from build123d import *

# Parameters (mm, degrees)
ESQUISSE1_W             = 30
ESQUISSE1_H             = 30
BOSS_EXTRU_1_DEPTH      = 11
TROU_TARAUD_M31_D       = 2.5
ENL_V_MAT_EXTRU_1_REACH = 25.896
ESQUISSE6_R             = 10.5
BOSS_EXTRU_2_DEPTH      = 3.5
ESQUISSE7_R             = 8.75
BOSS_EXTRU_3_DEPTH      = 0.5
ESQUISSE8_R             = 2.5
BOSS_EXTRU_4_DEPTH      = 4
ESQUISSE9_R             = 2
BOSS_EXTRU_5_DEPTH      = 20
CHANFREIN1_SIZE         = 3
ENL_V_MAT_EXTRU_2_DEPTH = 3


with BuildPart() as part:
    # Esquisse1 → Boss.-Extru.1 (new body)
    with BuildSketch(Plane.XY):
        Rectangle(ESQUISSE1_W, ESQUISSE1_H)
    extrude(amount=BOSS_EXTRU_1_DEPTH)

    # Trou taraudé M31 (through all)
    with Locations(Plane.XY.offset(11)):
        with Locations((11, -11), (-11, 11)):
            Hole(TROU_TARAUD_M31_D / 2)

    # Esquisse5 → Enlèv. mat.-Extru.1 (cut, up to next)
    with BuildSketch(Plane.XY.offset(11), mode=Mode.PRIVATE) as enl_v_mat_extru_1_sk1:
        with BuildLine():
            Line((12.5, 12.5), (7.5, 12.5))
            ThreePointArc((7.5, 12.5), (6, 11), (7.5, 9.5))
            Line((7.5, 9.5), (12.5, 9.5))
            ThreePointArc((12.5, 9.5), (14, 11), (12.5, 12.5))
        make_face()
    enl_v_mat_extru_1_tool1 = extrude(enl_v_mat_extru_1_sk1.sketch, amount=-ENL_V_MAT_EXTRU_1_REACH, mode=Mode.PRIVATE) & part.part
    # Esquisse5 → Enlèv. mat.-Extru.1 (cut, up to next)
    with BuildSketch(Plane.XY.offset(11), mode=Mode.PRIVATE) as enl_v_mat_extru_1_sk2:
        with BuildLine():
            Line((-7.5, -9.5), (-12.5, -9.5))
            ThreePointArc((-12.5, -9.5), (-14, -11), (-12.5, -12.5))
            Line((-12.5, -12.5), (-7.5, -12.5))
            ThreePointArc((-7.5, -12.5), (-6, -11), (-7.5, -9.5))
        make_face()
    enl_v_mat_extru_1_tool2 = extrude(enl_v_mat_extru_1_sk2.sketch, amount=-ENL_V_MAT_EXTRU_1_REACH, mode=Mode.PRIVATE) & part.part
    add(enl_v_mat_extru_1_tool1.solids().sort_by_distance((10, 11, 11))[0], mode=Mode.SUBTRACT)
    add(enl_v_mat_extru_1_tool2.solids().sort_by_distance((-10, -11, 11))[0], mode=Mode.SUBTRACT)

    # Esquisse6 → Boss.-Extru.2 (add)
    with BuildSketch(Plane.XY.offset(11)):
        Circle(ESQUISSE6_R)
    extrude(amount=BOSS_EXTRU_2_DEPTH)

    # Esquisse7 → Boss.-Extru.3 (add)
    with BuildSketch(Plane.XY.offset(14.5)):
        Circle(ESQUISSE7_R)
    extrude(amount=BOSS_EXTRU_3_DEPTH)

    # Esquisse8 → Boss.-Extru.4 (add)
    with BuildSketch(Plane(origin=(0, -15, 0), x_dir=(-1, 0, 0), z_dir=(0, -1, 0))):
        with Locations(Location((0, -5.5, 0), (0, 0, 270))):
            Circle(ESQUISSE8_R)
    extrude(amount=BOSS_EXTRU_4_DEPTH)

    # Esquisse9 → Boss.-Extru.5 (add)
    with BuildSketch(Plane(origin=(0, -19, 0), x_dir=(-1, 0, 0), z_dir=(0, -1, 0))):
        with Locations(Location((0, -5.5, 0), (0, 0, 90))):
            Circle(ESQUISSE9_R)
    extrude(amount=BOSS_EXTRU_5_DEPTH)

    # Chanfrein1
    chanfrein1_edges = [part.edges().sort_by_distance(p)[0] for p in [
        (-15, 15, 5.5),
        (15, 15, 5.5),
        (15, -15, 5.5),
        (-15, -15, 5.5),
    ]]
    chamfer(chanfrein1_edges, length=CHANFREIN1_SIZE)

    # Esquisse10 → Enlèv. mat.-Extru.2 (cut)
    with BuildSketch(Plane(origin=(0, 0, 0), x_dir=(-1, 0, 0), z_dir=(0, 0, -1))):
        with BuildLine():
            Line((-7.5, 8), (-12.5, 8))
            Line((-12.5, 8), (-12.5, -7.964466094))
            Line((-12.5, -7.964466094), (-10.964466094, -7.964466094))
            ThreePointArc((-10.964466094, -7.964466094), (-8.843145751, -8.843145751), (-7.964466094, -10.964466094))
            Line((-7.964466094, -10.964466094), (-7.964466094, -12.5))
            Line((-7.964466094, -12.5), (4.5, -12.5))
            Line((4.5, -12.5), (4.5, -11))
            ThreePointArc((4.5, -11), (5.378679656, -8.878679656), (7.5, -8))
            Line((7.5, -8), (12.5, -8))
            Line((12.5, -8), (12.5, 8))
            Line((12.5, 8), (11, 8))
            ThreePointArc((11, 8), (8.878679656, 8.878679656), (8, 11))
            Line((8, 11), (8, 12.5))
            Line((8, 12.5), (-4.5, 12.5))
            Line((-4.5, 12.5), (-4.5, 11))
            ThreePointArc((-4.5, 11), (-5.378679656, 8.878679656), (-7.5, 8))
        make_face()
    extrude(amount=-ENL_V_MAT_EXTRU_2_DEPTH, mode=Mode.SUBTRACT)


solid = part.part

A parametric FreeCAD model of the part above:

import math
import FreeCAD as App
import Part
import Sketcher

V = App.Vector
Q = App.Units.Quantity


def edges_at(feature, points):
    """Names of the edges that pass closest to the given points."""
    edges = feature.Shape.Edges
    near = lambda p: min(range(len(edges)), key=lambda i: edges[i].distToShape(Part.Vertex(*p))[0])
    return sorted({f"Edge{near(p) + 1}" for p in points})


def add_polygon(sketch, points):
    """Adds a closed chain of lines whose ends are joined by coincident constraints."""
    first, n = sketch.GeometryCount, len(points)
    for a, b in zip(points, points[1:] + points[:1]):
        sketch.addGeometry(Part.LineSegment(App.Vector(*a, 0), App.Vector(*b, 0)), False)
    for i in range(n):
        sketch.addConstraint(Sketcher.Constraint("Coincident", first + i, 2, first + (i + 1) % n, 1))

doc = App.newDocument("Part")
body = doc.addObject("PartDesign::Body", "Body")

# Sketch on XY plane
sketch1 = doc.addObject("Sketcher::SketchObject", "Sketch")
body.addObject(sketch1)
sketch1.AttachmentSupport = (doc.XY_Plane, [""])
sketch1.MapMode = "FlatFace"
add_polygon(sketch1, [(-15, 15), (-15, -15), (15, -15), (15, 15)])  # lines 0-3
sketch1.addConstraint(Sketcher.Constraint("Vertical", 0))
sketch1.addConstraint(Sketcher.Constraint("Horizontal", 1))
sketch1.addConstraint(Sketcher.Constraint("Vertical", 2))
sketch1.addConstraint(Sketcher.Constraint("Horizontal", 3))
sketch1.addConstraint(Sketcher.Constraint("Symmetric", 0, 2, 2, 2, -1, 1))
sketch1.addConstraint(Sketcher.Constraint("Equal", 3, 0))
sketch1.addConstraint(Sketcher.Constraint("DistanceX", 1, 1, 1, 2, Q("30 mm")))
pad1 = doc.addObject("PartDesign::Pad", "Pad")
body.addObject(pad1)
pad1.Profile = sketch1
pad1.Length = 11

# Sketch on XY plane
sketch2 = doc.addObject("Sketcher::SketchObject", "Sketch001")
body.addObject(sketch2)
sketch2.AttachmentSupport = (doc.XY_Plane, [""])
sketch2.MapMode = "FlatFace"
sketch2.AttachmentOffset = App.Placement(V(0, 0, 11), App.Rotation())
sketch2.addGeometry(Part.Circle(V(11, -11, 0), V(0, 0, 1), 1.25), False)
sketch2.addGeometry(Part.Circle(V(-11, 11, 0), V(0, 0, 1), 1.25), False)
sketch2.addConstraint(Sketcher.Constraint("Equal", 0, 1))
sketch2.addConstraint(Sketcher.Constraint("Symmetric", 0, 3, 1, 3, -1, 1))
sketch2.addConstraint(Sketcher.Constraint("Diameter", 0, Q("2.5 mm")))
sketch2.addConstraint(Sketcher.Constraint("DistanceX", -1, 1, 0, 3, Q("11 mm")))
sketch2.addConstraint(Sketcher.Constraint("DistanceY", 0, 3, -1, 1, Q("11 mm")))
doc.recompute()
hole = doc.addObject("PartDesign::Hole", "Hole")
body.addObject(hole)
hole.Profile = sketch2
hole.ThreadType = "None"
hole.Diameter = 2.5
hole.DepthType = "ThroughAll"

# Sketch on XY plane
sketch3 = doc.addObject("Sketcher::SketchObject", "Sketch002")
body.addObject(sketch3)
sketch3.AttachmentSupport = (doc.XY_Plane, [""])
sketch3.MapMode = "FlatFace"
sketch3.AttachmentOffset = App.Placement(V(0, 0, 11), App.Rotation())
sketch3.addGeometry(Part.LineSegment(V(12.5, 12.5, 0), V(7.5, 12.5, 0)), False)
sketch3.addGeometry(Part.ArcOfCircle(Part.Circle(V(7.5, 11, 0), V(0, 0, 1), 1.5), math.radians(90), math.radians(270)), False)
sketch3.addGeometry(Part.LineSegment(V(7.5, 9.5, 0), V(12.5, 9.5, 0)), False)
sketch3.addGeometry(Part.ArcOfCircle(Part.Circle(V(12.5, 11, 0), V(0, 0, 1), 1.5), math.radians(-90), math.radians(90)), False)
sketch3.addConstraint(Sketcher.Constraint("Tangent", 0, 2, 1, 1))
sketch3.addConstraint(Sketcher.Constraint("Tangent", 1, 2, 2, 1))
sketch3.addConstraint(Sketcher.Constraint("Tangent", 2, 2, 3, 1))
sketch3.addConstraint(Sketcher.Constraint("Tangent", 3, 2, 0, 1))
sketch3.addConstraint(Sketcher.Constraint("Horizontal", 0))
sketch3.addConstraint(Sketcher.Constraint("Horizontal", 2))
sketch3.addConstraint(Sketcher.Constraint("Radius", 1, Q("1.5 mm")))
sketch3.addConstraint(Sketcher.Constraint("DistanceX", 0, 2, 0, 1, Q("5 mm")))
sketch3.addConstraint(Sketcher.Constraint("DistanceY", -1, 1, 1, 3, Q("11 mm")))
sketch3.addConstraint(Sketcher.Constraint("DistanceX", -1, 1, 1, 3, Q("7.5 mm")))
pocket1 = doc.addObject("PartDesign::Pocket", "Pocket")
body.addObject(pocket1)
pocket1.Profile = sketch3
pocket1.Type = "UpToFirst"

# Sketch on XY plane
sketch4 = doc.addObject("Sketcher::SketchObject", "Sketch003")
body.addObject(sketch4)
sketch4.AttachmentSupport = (doc.XY_Plane, [""])
sketch4.MapMode = "FlatFace"
sketch4.AttachmentOffset = App.Placement(V(0, 0, 11), App.Rotation())
sketch4.addGeometry(Part.LineSegment(V(-7.5, -9.5, 0), V(-12.5, -9.5, 0)), False)
sketch4.addGeometry(Part.ArcOfCircle(Part.Circle(V(-12.5, -11, 0), V(0, 0, 1), 1.5), math.radians(90), math.radians(270)), False)
sketch4.addGeometry(Part.LineSegment(V(-12.5, -12.5, 0), V(-7.5, -12.5, 0)), False)
sketch4.addGeometry(Part.ArcOfCircle(Part.Circle(V(-7.5, -11, 0), V(0, 0, 1), 1.5), math.radians(-90), math.radians(90)), False)
sketch4.addConstraint(Sketcher.Constraint("Tangent", 0, 2, 1, 1))
sketch4.addConstraint(Sketcher.Constraint("Tangent", 1, 2, 2, 1))
sketch4.addConstraint(Sketcher.Constraint("Tangent", 2, 2, 3, 1))
sketch4.addConstraint(Sketcher.Constraint("Tangent", 3, 2, 0, 1))
sketch4.addConstraint(Sketcher.Constraint("Horizontal", 0))
sketch4.addConstraint(Sketcher.Constraint("Horizontal", 2))
sketch4.addConstraint(Sketcher.Constraint("Radius", 1, Q("1.5 mm")))
sketch4.addConstraint(Sketcher.Constraint("DistanceX", 0, 2, 0, 1, Q("5 mm")))
sketch4.addConstraint(Sketcher.Constraint("DistanceY", 1, 3, -1, 1, Q("11 mm")))
sketch4.addConstraint(Sketcher.Constraint("DistanceX", 1, 3, -1, 1, Q("12.5 mm")))
pocket2 = doc.addObject("PartDesign::Pocket", "Pocket001")
body.addObject(pocket2)
pocket2.Profile = sketch4
pocket2.Type = "UpToFirst"

# Sketch on XY plane
sketch5 = doc.addObject("Sketcher::SketchObject", "Sketch004")
body.addObject(sketch5)
sketch5.AttachmentSupport = (doc.XY_Plane, [""])
sketch5.MapMode = "FlatFace"
sketch5.AttachmentOffset = App.Placement(V(0, 0, 11), App.Rotation())
sketch5.addGeometry(Part.Circle(V(0, 0, 0), V(0, 0, 1), 10.5), False)
sketch5.addConstraint(Sketcher.Constraint("Coincident", 0, 3, -1, 1))
sketch5.addConstraint(Sketcher.Constraint("Diameter", 0, Q("21 mm")))
pad2 = doc.addObject("PartDesign::Pad", "Pad001")
body.addObject(pad2)
pad2.Profile = sketch5
pad2.Length = 3.5

# Sketch on XY plane
sketch6 = doc.addObject("Sketcher::SketchObject", "Sketch005")
body.addObject(sketch6)
sketch6.AttachmentSupport = (doc.XY_Plane, [""])
sketch6.MapMode = "FlatFace"
sketch6.AttachmentOffset = App.Placement(V(0, 0, 14.5), App.Rotation())
sketch6.addGeometry(Part.Circle(V(0, 0, 0), V(0, 0, 1), 8.75), False)
sketch6.addConstraint(Sketcher.Constraint("Coincident", 0, 3, -1, 1))
sketch6.addConstraint(Sketcher.Constraint("Diameter", 0, Q("17.5 mm")))
pad3 = doc.addObject("PartDesign::Pad", "Pad002")
body.addObject(pad3)
pad3.Profile = sketch6
pad3.Length = 0.5

# Sketch on XZ plane
sketch7 = doc.addObject("Sketcher::SketchObject", "Sketch006")
body.addObject(sketch7)
sketch7.AttachmentSupport = (doc.XZ_Plane, [""])
sketch7.MapMode = "FlatFace"
sketch7.AttachmentOffset = App.Placement(V(0, 0, 15), App.Rotation())
sketch7.addGeometry(Part.Circle(V(0, 5.5, 0), V(0, 0, 1), 2.5), False)
sketch7.addConstraint(Sketcher.Constraint("PointOnObject", 0, 3, -2))
sketch7.addConstraint(Sketcher.Constraint("Diameter", 0, Q("5 mm")))
sketch7.addConstraint(Sketcher.Constraint("DistanceY", -1, 1, 0, 3, Q("5.5 mm")))
pad4 = doc.addObject("PartDesign::Pad", "Pad003")
body.addObject(pad4)
pad4.Profile = sketch7
pad4.Length = 4

# Sketch on XZ plane
sketch8 = doc.addObject("Sketcher::SketchObject", "Sketch007")
body.addObject(sketch8)
sketch8.AttachmentSupport = (doc.XZ_Plane, [""])
sketch8.MapMode = "FlatFace"
sketch8.AttachmentOffset = App.Placement(V(0, 0, 19), App.Rotation())
sketch8.addGeometry(Part.Circle(V(0, 5.5, 0), V(0, 0, 1), 2), False)
sketch8.addConstraint(Sketcher.Constraint("PointOnObject", 0, 3, -2))
sketch8.addConstraint(Sketcher.Constraint("Diameter", 0, Q("4 mm")))
sketch8.addConstraint(Sketcher.Constraint("DistanceY", -1, 1, 0, 3, Q("5.5 mm")))
pad5 = doc.addObject("PartDesign::Pad", "Pad004")
body.addObject(pad5)
pad5.Profile = sketch8
pad5.Length = 20
doc.recompute()

chamfer = doc.addObject("PartDesign::Chamfer", "Chamfer")
body.addObject(chamfer)
chamfer.Base = (pad5, edges_at(pad5, [
    (-15, 15, 5.5),
    (15, 15, 5.5),
    (15, -15, 5.5),
    (-15, -15, 5.5),
]))
chamfer.Size = 3

# Sketch on XY plane
sketch9 = doc.addObject("Sketcher::SketchObject", "Sketch008")
body.addObject(sketch9)
sketch9.AttachmentSupport = (doc.XY_Plane, [""])
sketch9.MapMode = "FlatFace"
sketch9.addGeometry(Part.LineSegment(V(7.5, 8, 0), V(12.5, 8, 0)), False)
sketch9.addGeometry(Part.LineSegment(V(12.5, 8, 0), V(12.5, -7.964466, 0)), False)
sketch9.addGeometry(Part.LineSegment(V(12.5, -7.964466, 0), V(10.964466, -7.964466, 0)), False)
sketch9.addGeometry(Part.ArcOfCircle(Part.Circle(V(10.964466, -10.964466, 0), V(0, 0, 1), 3), math.radians(90), math.radians(180)), False)
sketch9.addGeometry(Part.LineSegment(V(7.964466, -10.964466, 0), V(7.964466, -12.5, 0)), False)
sketch9.addGeometry(Part.LineSegment(V(7.964466, -12.5, 0), V(-4.5, -12.5, 0)), False)
sketch9.addGeometry(Part.LineSegment(V(-4.5, -12.5, 0), V(-4.5, -11, 0)), False)
sketch9.addGeometry(Part.ArcOfCircle(Part.Circle(V(-7.5, -11, 0), V(0, 0, 1), 3), math.radians(0), math.radians(90)), False)
sketch9.addGeometry(Part.LineSegment(V(-7.5, -8, 0), V(-12.5, -8, 0)), False)
sketch9.addGeometry(Part.LineSegment(V(-12.5, -8, 0), V(-12.5, 8, 0)), False)
sketch9.addGeometry(Part.LineSegment(V(-12.5, 8, 0), V(-11, 8, 0)), False)
sketch9.addGeometry(Part.ArcOfCircle(Part.Circle(V(-11, 11, 0), V(0, 0, 1), 3), math.radians(-90), math.radians(0)), False)
sketch9.addGeometry(Part.LineSegment(V(-8, 11, 0), V(-8, 12.5, 0)), False)
sketch9.addGeometry(Part.LineSegment(V(-8, 12.5, 0), V(4.5, 12.5, 0)), False)
sketch9.addGeometry(Part.LineSegment(V(4.5, 12.5, 0), V(4.5, 11, 0)), False)
sketch9.addGeometry(Part.ArcOfCircle(Part.Circle(V(7.5, 11, 0), V(0, 0, 1), 3), math.radians(180), math.radians(270)), False)
sketch9.addConstraint(Sketcher.Constraint("Coincident", 0, 2, 1, 1))
sketch9.addConstraint(Sketcher.Constraint("Coincident", 1, 2, 2, 1))
sketch9.addConstraint(Sketcher.Constraint("Tangent", 2, 2, 3, 1))
sketch9.addConstraint(Sketcher.Constraint("Tangent", 3, 2, 4, 1))
sketch9.addConstraint(Sketcher.Constraint("Coincident", 4, 2, 5, 1))
sketch9.addConstraint(Sketcher.Constraint("Coincident", 5, 2, 6, 1))
sketch9.addConstraint(Sketcher.Constraint("Tangent", 6, 2, 7, 1))
sketch9.addConstraint(Sketcher.Constraint("Tangent", 7, 2, 8, 1))
sketch9.addConstraint(Sketcher.Constraint("Coincident", 8, 2, 9, 1))
sketch9.addConstraint(Sketcher.Constraint("Coincident", 9, 2, 10, 1))
sketch9.addConstraint(Sketcher.Constraint("Tangent", 10, 2, 11, 1))
sketch9.addConstraint(Sketcher.Constraint("Tangent", 11, 2, 12, 1))
sketch9.addConstraint(Sketcher.Constraint("Coincident", 12, 2, 13, 1))
sketch9.addConstraint(Sketcher.Constraint("Coincident", 13, 2, 14, 1))
sketch9.addConstraint(Sketcher.Constraint("Tangent", 14, 2, 15, 1))
sketch9.addConstraint(Sketcher.Constraint("Tangent", 15, 2, 0, 1))
sketch9.addConstraint(Sketcher.Constraint("Horizontal", 0))
sketch9.addConstraint(Sketcher.Constraint("Vertical", 1))
sketch9.addConstraint(Sketcher.Constraint("Horizontal", 2))
sketch9.addConstraint(Sketcher.Constraint("Vertical", 4))
sketch9.addConstraint(Sketcher.Constraint("Horizontal", 5))
sketch9.addConstraint(Sketcher.Constraint("Vertical", 6))
sketch9.addConstraint(Sketcher.Constraint("Horizontal", 8))
sketch9.addConstraint(Sketcher.Constraint("Vertical", 9))
sketch9.addConstraint(Sketcher.Constraint("Horizontal", 10))
sketch9.addConstraint(Sketcher.Constraint("Vertical", 12))
sketch9.addConstraint(Sketcher.Constraint("Horizontal", 13))
sketch9.addConstraint(Sketcher.Constraint("Vertical", 14))
sketch9.addConstraint(Sketcher.Constraint("Equal", 3, 7))
sketch9.addConstraint(Sketcher.Constraint("Equal", 7, 11))
sketch9.addConstraint(Sketcher.Constraint("Equal", 11, 15))
sketch9.addConstraint(Sketcher.Constraint("Symmetric", 7, 3, 15, 3, -1, 1))
sketch9.addConstraint(Sketcher.Constraint("Symmetric", 0, 2, 9, 2, -2))
sketch9.addConstraint(Sketcher.Constraint("Equal", 2, 4))
sketch9.addConstraint(Sketcher.Constraint("Equal", 10, 6))
sketch9.addConstraint(Sketcher.Constraint("Equal", 6, 12))
sketch9.addConstraint(Sketcher.Constraint("Radius", 3, Q("3 mm")))
sketch9.addConstraint(Sketcher.Constraint("DistanceX", 0, 1, 0, 2, Q("5 mm")))
sketch9.addConstraint(Sketcher.Constraint("DistanceY", 9, 1, 9, 2, Q("16 mm")))
sketch9.addConstraint(Sketcher.Constraint("DistanceX", 10, 1, 10, 2, Q("1.5 mm")))
sketch9.addConstraint(Sketcher.Constraint("DistanceX", 13, 1, 13, 2, Q("12.5 mm")))
sketch9.addConstraint(Sketcher.Constraint("DistanceX", 2, 2, 2, 1, Q("1.535534 mm")))
pocket3 = doc.addObject("PartDesign::Pocket", "Pocket002")
body.addObject(pocket3)
pocket3.Profile = sketch9
pocket3.Length = 3
pocket3.Reversed = True

doc.recompute()
